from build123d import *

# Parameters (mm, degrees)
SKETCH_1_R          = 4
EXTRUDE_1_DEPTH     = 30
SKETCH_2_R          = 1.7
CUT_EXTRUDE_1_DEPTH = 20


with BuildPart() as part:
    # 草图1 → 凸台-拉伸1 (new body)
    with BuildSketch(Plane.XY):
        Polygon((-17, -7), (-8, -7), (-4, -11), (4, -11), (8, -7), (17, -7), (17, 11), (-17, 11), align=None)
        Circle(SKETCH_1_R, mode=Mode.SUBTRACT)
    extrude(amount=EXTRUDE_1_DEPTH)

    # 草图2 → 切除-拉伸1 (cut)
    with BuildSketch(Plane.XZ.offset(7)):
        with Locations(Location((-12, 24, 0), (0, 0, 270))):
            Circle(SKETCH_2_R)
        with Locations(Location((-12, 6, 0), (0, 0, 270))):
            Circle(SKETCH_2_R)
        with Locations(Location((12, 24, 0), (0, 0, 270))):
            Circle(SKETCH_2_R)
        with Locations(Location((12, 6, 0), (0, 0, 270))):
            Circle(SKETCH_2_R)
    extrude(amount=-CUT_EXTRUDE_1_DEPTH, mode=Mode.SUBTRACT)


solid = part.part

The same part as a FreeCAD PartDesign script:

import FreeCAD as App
import Part
import Sketcher
from FreeCAD import Vector

doc = App.newDocument("Part")
body = doc.addObject("PartDesign::Body", "Body")

sketch1 = body.newObject("Sketcher::SketchObject", "Sketch")
sketch1.AttachmentSupport = (doc.getObject("XY_Plane"), [""])
sketch1.MapMode = "FlatFace"
sketch1.addGeometry(Part.LineSegment(Vector(-17, -7, 0), Vector(-8, -7, 0)), False)
sketch1.addGeometry(Part.LineSegment(Vector(-8, -7, 0), Vector(-4, -11, 0)), False)
sketch1.addGeometry(Part.LineSegment(Vector(-4, -11, 0), Vector(4, -11, 0)), False)
sketch1.addGeometry(Part.LineSegment(Vector(4, -11, 0), Vector(8, -7, 0)), False)
sketch1.addGeometry(Part.LineSegment(Vector(8, -7, 0), Vector(17, -7, 0)), False)
sketch1.addGeometry(Part.LineSegment(Vector(17, -7, 0), Vector(17, 11, 0)), False)
sketch1.addGeometry(Part.LineSegment(Vector(17, 11, 0), Vector(-17, 11, 0)), False)
sketch1.addGeometry(Part.LineSegment(Vector(-17, 11, 0), Vector(-17, -7, 0)), False)
sketch1.addGeometry(Part.Circle(Vector(0, 0, 0), Vector(0, 0, 1), 4), False)
sketch1.addConstraint(Sketcher.Constraint("Coincident", 0, 2, 1, 1))
sketch1.addConstraint(Sketcher.Constraint("Coincident", 1, 2, 2, 1))
sketch1.addConstraint(Sketcher.Constraint("Coincident", 2, 2, 3, 1))
sketch1.addConstraint(Sketcher.Constraint("Coincident", 3, 2, 4, 1))
sketch1.addConstraint(Sketcher.Constraint("Coincident", 4, 2, 5, 1))
sketch1.addConstraint(Sketcher.Constraint("Coincident", 5, 2, 6, 1))
sketch1.addConstraint(Sketcher.Constraint("Coincident", 6, 2, 7, 1))
sketch1.addConstraint(Sketcher.Constraint("Coincident", 7, 2, 0, 1))
sketch1.addConstraint(Sketcher.Constraint("Horizontal", 0))
sketch1.addConstraint(Sketcher.Constraint("Horizontal", 2))
sketch1.addConstraint(Sketcher.Constraint("Horizontal", 4))
sketch1.addConstraint(Sketcher.Constraint("Vertical", 5))
sketch1.addConstraint(Sketcher.Constraint("Horizontal", 6))
sketch1.addConstraint(Sketcher.Constraint("Vertical", 7))
sketch1.addConstraint(Sketcher.Constraint("Coincident", 8, 3, -1, 1))
sketch1.addConstraint(Sketcher.Constraint("Symmetric", 0, 2, 3, 2, -2))
sketch1.addConstraint(Sketcher.Constraint("Perpendicular", 1, 3))
sketch1.addConstraint(Sketcher.Constraint("Equal", 0, 4))
sketch1.addConstraint(Sketcher.Constraint("Equal", 1, 3))
sketch1.addConstraint(Sketcher.Constraint("Diameter", 8, 8.0))
sketch1.addConstraint(Sketcher.Constraint("DistanceX", 0, 1, 0, 2, 9.0))
sketch1.addConstraint(Sketcher.Constraint("DistanceX", 2, 1, 2, 2, 8.0))
sketch1.addConstraint(Sketcher.Constraint("DistanceX", 6, 2, 6, 1, 34.0))
sketch1.addConstraint(Sketcher.Constraint("DistanceY", 5, 1, 5, 2, 18.0))
sketch1.addConstraint(Sketcher.Constraint("DistanceY", 0, 2, -1, 1, 7.0))
pad1 = body.newObject("PartDesign::Pad", "Pad")
pad1.Profile = sketch1
pad1.Length = 30

sketch2 = body.newObject("Sketcher::SketchObject", "Sketch001")
sketch2.AttachmentSupport = (doc.getObject("XZ_Plane"), [""])
sketch2.MapMode = "FlatFace"
sketch2.AttachmentOffset = App.Placement(Vector(0, 0, 7), App.Rotation())
sketch2.addGeometry(Part.Circle(Vector(-12, 24, 0), Vector(0, 0, 1), 1.7), False)
sketch2.addGeometry(Part.Circle(Vector(-12, 6, 0), Vector(0, 0, 1), 1.7), False)
sketch2.addGeometry(Part.Circle(Vector(12, 24, 0), Vector(0, 0, 1), 1.7), False)
sketch2.addGeometry(Part.Circle(Vector(12, 6, 0), Vector(0, 0, 1), 1.7), False)
sketch2.addConstraint(Sketcher.Constraint("Equal", 0, 1))
sketch2.addConstraint(Sketcher.Constraint("Equal", 1, 2))
sketch2.addConstraint(Sketcher.Constraint("Equal", 2, 3))
sketch2.addConstraint(Sketcher.Constraint("Symmetric", 0, 3, 2, 3, -2))
sketch2.addConstraint(Sketcher.Constraint("Symmetric", 1, 3, 3, 3, -2))
sketch2.addConstraint(Sketcher.Constraint("Vertical", 0, 3, 1, 3))
sketch2.addConstraint(Sketcher.Constraint("Diameter", 0, 3.4))
sketch2.addConstraint(Sketcher.Constraint("DistanceX", 0, 3, -1, 1, 12.0))
sketch2.addConstraint(Sketcher.Constraint("DistanceY", -1, 1, 0, 3, 24.0))
sketch2.addConstraint(Sketcher.Constraint("DistanceY", -1, 1, 1, 3, 6.0))
pocket1 = body.newObject("PartDesign::Pocket", "Pocket")
pocket1.Profile = sketch2
pocket1.Length = 20

doc.recompute()
